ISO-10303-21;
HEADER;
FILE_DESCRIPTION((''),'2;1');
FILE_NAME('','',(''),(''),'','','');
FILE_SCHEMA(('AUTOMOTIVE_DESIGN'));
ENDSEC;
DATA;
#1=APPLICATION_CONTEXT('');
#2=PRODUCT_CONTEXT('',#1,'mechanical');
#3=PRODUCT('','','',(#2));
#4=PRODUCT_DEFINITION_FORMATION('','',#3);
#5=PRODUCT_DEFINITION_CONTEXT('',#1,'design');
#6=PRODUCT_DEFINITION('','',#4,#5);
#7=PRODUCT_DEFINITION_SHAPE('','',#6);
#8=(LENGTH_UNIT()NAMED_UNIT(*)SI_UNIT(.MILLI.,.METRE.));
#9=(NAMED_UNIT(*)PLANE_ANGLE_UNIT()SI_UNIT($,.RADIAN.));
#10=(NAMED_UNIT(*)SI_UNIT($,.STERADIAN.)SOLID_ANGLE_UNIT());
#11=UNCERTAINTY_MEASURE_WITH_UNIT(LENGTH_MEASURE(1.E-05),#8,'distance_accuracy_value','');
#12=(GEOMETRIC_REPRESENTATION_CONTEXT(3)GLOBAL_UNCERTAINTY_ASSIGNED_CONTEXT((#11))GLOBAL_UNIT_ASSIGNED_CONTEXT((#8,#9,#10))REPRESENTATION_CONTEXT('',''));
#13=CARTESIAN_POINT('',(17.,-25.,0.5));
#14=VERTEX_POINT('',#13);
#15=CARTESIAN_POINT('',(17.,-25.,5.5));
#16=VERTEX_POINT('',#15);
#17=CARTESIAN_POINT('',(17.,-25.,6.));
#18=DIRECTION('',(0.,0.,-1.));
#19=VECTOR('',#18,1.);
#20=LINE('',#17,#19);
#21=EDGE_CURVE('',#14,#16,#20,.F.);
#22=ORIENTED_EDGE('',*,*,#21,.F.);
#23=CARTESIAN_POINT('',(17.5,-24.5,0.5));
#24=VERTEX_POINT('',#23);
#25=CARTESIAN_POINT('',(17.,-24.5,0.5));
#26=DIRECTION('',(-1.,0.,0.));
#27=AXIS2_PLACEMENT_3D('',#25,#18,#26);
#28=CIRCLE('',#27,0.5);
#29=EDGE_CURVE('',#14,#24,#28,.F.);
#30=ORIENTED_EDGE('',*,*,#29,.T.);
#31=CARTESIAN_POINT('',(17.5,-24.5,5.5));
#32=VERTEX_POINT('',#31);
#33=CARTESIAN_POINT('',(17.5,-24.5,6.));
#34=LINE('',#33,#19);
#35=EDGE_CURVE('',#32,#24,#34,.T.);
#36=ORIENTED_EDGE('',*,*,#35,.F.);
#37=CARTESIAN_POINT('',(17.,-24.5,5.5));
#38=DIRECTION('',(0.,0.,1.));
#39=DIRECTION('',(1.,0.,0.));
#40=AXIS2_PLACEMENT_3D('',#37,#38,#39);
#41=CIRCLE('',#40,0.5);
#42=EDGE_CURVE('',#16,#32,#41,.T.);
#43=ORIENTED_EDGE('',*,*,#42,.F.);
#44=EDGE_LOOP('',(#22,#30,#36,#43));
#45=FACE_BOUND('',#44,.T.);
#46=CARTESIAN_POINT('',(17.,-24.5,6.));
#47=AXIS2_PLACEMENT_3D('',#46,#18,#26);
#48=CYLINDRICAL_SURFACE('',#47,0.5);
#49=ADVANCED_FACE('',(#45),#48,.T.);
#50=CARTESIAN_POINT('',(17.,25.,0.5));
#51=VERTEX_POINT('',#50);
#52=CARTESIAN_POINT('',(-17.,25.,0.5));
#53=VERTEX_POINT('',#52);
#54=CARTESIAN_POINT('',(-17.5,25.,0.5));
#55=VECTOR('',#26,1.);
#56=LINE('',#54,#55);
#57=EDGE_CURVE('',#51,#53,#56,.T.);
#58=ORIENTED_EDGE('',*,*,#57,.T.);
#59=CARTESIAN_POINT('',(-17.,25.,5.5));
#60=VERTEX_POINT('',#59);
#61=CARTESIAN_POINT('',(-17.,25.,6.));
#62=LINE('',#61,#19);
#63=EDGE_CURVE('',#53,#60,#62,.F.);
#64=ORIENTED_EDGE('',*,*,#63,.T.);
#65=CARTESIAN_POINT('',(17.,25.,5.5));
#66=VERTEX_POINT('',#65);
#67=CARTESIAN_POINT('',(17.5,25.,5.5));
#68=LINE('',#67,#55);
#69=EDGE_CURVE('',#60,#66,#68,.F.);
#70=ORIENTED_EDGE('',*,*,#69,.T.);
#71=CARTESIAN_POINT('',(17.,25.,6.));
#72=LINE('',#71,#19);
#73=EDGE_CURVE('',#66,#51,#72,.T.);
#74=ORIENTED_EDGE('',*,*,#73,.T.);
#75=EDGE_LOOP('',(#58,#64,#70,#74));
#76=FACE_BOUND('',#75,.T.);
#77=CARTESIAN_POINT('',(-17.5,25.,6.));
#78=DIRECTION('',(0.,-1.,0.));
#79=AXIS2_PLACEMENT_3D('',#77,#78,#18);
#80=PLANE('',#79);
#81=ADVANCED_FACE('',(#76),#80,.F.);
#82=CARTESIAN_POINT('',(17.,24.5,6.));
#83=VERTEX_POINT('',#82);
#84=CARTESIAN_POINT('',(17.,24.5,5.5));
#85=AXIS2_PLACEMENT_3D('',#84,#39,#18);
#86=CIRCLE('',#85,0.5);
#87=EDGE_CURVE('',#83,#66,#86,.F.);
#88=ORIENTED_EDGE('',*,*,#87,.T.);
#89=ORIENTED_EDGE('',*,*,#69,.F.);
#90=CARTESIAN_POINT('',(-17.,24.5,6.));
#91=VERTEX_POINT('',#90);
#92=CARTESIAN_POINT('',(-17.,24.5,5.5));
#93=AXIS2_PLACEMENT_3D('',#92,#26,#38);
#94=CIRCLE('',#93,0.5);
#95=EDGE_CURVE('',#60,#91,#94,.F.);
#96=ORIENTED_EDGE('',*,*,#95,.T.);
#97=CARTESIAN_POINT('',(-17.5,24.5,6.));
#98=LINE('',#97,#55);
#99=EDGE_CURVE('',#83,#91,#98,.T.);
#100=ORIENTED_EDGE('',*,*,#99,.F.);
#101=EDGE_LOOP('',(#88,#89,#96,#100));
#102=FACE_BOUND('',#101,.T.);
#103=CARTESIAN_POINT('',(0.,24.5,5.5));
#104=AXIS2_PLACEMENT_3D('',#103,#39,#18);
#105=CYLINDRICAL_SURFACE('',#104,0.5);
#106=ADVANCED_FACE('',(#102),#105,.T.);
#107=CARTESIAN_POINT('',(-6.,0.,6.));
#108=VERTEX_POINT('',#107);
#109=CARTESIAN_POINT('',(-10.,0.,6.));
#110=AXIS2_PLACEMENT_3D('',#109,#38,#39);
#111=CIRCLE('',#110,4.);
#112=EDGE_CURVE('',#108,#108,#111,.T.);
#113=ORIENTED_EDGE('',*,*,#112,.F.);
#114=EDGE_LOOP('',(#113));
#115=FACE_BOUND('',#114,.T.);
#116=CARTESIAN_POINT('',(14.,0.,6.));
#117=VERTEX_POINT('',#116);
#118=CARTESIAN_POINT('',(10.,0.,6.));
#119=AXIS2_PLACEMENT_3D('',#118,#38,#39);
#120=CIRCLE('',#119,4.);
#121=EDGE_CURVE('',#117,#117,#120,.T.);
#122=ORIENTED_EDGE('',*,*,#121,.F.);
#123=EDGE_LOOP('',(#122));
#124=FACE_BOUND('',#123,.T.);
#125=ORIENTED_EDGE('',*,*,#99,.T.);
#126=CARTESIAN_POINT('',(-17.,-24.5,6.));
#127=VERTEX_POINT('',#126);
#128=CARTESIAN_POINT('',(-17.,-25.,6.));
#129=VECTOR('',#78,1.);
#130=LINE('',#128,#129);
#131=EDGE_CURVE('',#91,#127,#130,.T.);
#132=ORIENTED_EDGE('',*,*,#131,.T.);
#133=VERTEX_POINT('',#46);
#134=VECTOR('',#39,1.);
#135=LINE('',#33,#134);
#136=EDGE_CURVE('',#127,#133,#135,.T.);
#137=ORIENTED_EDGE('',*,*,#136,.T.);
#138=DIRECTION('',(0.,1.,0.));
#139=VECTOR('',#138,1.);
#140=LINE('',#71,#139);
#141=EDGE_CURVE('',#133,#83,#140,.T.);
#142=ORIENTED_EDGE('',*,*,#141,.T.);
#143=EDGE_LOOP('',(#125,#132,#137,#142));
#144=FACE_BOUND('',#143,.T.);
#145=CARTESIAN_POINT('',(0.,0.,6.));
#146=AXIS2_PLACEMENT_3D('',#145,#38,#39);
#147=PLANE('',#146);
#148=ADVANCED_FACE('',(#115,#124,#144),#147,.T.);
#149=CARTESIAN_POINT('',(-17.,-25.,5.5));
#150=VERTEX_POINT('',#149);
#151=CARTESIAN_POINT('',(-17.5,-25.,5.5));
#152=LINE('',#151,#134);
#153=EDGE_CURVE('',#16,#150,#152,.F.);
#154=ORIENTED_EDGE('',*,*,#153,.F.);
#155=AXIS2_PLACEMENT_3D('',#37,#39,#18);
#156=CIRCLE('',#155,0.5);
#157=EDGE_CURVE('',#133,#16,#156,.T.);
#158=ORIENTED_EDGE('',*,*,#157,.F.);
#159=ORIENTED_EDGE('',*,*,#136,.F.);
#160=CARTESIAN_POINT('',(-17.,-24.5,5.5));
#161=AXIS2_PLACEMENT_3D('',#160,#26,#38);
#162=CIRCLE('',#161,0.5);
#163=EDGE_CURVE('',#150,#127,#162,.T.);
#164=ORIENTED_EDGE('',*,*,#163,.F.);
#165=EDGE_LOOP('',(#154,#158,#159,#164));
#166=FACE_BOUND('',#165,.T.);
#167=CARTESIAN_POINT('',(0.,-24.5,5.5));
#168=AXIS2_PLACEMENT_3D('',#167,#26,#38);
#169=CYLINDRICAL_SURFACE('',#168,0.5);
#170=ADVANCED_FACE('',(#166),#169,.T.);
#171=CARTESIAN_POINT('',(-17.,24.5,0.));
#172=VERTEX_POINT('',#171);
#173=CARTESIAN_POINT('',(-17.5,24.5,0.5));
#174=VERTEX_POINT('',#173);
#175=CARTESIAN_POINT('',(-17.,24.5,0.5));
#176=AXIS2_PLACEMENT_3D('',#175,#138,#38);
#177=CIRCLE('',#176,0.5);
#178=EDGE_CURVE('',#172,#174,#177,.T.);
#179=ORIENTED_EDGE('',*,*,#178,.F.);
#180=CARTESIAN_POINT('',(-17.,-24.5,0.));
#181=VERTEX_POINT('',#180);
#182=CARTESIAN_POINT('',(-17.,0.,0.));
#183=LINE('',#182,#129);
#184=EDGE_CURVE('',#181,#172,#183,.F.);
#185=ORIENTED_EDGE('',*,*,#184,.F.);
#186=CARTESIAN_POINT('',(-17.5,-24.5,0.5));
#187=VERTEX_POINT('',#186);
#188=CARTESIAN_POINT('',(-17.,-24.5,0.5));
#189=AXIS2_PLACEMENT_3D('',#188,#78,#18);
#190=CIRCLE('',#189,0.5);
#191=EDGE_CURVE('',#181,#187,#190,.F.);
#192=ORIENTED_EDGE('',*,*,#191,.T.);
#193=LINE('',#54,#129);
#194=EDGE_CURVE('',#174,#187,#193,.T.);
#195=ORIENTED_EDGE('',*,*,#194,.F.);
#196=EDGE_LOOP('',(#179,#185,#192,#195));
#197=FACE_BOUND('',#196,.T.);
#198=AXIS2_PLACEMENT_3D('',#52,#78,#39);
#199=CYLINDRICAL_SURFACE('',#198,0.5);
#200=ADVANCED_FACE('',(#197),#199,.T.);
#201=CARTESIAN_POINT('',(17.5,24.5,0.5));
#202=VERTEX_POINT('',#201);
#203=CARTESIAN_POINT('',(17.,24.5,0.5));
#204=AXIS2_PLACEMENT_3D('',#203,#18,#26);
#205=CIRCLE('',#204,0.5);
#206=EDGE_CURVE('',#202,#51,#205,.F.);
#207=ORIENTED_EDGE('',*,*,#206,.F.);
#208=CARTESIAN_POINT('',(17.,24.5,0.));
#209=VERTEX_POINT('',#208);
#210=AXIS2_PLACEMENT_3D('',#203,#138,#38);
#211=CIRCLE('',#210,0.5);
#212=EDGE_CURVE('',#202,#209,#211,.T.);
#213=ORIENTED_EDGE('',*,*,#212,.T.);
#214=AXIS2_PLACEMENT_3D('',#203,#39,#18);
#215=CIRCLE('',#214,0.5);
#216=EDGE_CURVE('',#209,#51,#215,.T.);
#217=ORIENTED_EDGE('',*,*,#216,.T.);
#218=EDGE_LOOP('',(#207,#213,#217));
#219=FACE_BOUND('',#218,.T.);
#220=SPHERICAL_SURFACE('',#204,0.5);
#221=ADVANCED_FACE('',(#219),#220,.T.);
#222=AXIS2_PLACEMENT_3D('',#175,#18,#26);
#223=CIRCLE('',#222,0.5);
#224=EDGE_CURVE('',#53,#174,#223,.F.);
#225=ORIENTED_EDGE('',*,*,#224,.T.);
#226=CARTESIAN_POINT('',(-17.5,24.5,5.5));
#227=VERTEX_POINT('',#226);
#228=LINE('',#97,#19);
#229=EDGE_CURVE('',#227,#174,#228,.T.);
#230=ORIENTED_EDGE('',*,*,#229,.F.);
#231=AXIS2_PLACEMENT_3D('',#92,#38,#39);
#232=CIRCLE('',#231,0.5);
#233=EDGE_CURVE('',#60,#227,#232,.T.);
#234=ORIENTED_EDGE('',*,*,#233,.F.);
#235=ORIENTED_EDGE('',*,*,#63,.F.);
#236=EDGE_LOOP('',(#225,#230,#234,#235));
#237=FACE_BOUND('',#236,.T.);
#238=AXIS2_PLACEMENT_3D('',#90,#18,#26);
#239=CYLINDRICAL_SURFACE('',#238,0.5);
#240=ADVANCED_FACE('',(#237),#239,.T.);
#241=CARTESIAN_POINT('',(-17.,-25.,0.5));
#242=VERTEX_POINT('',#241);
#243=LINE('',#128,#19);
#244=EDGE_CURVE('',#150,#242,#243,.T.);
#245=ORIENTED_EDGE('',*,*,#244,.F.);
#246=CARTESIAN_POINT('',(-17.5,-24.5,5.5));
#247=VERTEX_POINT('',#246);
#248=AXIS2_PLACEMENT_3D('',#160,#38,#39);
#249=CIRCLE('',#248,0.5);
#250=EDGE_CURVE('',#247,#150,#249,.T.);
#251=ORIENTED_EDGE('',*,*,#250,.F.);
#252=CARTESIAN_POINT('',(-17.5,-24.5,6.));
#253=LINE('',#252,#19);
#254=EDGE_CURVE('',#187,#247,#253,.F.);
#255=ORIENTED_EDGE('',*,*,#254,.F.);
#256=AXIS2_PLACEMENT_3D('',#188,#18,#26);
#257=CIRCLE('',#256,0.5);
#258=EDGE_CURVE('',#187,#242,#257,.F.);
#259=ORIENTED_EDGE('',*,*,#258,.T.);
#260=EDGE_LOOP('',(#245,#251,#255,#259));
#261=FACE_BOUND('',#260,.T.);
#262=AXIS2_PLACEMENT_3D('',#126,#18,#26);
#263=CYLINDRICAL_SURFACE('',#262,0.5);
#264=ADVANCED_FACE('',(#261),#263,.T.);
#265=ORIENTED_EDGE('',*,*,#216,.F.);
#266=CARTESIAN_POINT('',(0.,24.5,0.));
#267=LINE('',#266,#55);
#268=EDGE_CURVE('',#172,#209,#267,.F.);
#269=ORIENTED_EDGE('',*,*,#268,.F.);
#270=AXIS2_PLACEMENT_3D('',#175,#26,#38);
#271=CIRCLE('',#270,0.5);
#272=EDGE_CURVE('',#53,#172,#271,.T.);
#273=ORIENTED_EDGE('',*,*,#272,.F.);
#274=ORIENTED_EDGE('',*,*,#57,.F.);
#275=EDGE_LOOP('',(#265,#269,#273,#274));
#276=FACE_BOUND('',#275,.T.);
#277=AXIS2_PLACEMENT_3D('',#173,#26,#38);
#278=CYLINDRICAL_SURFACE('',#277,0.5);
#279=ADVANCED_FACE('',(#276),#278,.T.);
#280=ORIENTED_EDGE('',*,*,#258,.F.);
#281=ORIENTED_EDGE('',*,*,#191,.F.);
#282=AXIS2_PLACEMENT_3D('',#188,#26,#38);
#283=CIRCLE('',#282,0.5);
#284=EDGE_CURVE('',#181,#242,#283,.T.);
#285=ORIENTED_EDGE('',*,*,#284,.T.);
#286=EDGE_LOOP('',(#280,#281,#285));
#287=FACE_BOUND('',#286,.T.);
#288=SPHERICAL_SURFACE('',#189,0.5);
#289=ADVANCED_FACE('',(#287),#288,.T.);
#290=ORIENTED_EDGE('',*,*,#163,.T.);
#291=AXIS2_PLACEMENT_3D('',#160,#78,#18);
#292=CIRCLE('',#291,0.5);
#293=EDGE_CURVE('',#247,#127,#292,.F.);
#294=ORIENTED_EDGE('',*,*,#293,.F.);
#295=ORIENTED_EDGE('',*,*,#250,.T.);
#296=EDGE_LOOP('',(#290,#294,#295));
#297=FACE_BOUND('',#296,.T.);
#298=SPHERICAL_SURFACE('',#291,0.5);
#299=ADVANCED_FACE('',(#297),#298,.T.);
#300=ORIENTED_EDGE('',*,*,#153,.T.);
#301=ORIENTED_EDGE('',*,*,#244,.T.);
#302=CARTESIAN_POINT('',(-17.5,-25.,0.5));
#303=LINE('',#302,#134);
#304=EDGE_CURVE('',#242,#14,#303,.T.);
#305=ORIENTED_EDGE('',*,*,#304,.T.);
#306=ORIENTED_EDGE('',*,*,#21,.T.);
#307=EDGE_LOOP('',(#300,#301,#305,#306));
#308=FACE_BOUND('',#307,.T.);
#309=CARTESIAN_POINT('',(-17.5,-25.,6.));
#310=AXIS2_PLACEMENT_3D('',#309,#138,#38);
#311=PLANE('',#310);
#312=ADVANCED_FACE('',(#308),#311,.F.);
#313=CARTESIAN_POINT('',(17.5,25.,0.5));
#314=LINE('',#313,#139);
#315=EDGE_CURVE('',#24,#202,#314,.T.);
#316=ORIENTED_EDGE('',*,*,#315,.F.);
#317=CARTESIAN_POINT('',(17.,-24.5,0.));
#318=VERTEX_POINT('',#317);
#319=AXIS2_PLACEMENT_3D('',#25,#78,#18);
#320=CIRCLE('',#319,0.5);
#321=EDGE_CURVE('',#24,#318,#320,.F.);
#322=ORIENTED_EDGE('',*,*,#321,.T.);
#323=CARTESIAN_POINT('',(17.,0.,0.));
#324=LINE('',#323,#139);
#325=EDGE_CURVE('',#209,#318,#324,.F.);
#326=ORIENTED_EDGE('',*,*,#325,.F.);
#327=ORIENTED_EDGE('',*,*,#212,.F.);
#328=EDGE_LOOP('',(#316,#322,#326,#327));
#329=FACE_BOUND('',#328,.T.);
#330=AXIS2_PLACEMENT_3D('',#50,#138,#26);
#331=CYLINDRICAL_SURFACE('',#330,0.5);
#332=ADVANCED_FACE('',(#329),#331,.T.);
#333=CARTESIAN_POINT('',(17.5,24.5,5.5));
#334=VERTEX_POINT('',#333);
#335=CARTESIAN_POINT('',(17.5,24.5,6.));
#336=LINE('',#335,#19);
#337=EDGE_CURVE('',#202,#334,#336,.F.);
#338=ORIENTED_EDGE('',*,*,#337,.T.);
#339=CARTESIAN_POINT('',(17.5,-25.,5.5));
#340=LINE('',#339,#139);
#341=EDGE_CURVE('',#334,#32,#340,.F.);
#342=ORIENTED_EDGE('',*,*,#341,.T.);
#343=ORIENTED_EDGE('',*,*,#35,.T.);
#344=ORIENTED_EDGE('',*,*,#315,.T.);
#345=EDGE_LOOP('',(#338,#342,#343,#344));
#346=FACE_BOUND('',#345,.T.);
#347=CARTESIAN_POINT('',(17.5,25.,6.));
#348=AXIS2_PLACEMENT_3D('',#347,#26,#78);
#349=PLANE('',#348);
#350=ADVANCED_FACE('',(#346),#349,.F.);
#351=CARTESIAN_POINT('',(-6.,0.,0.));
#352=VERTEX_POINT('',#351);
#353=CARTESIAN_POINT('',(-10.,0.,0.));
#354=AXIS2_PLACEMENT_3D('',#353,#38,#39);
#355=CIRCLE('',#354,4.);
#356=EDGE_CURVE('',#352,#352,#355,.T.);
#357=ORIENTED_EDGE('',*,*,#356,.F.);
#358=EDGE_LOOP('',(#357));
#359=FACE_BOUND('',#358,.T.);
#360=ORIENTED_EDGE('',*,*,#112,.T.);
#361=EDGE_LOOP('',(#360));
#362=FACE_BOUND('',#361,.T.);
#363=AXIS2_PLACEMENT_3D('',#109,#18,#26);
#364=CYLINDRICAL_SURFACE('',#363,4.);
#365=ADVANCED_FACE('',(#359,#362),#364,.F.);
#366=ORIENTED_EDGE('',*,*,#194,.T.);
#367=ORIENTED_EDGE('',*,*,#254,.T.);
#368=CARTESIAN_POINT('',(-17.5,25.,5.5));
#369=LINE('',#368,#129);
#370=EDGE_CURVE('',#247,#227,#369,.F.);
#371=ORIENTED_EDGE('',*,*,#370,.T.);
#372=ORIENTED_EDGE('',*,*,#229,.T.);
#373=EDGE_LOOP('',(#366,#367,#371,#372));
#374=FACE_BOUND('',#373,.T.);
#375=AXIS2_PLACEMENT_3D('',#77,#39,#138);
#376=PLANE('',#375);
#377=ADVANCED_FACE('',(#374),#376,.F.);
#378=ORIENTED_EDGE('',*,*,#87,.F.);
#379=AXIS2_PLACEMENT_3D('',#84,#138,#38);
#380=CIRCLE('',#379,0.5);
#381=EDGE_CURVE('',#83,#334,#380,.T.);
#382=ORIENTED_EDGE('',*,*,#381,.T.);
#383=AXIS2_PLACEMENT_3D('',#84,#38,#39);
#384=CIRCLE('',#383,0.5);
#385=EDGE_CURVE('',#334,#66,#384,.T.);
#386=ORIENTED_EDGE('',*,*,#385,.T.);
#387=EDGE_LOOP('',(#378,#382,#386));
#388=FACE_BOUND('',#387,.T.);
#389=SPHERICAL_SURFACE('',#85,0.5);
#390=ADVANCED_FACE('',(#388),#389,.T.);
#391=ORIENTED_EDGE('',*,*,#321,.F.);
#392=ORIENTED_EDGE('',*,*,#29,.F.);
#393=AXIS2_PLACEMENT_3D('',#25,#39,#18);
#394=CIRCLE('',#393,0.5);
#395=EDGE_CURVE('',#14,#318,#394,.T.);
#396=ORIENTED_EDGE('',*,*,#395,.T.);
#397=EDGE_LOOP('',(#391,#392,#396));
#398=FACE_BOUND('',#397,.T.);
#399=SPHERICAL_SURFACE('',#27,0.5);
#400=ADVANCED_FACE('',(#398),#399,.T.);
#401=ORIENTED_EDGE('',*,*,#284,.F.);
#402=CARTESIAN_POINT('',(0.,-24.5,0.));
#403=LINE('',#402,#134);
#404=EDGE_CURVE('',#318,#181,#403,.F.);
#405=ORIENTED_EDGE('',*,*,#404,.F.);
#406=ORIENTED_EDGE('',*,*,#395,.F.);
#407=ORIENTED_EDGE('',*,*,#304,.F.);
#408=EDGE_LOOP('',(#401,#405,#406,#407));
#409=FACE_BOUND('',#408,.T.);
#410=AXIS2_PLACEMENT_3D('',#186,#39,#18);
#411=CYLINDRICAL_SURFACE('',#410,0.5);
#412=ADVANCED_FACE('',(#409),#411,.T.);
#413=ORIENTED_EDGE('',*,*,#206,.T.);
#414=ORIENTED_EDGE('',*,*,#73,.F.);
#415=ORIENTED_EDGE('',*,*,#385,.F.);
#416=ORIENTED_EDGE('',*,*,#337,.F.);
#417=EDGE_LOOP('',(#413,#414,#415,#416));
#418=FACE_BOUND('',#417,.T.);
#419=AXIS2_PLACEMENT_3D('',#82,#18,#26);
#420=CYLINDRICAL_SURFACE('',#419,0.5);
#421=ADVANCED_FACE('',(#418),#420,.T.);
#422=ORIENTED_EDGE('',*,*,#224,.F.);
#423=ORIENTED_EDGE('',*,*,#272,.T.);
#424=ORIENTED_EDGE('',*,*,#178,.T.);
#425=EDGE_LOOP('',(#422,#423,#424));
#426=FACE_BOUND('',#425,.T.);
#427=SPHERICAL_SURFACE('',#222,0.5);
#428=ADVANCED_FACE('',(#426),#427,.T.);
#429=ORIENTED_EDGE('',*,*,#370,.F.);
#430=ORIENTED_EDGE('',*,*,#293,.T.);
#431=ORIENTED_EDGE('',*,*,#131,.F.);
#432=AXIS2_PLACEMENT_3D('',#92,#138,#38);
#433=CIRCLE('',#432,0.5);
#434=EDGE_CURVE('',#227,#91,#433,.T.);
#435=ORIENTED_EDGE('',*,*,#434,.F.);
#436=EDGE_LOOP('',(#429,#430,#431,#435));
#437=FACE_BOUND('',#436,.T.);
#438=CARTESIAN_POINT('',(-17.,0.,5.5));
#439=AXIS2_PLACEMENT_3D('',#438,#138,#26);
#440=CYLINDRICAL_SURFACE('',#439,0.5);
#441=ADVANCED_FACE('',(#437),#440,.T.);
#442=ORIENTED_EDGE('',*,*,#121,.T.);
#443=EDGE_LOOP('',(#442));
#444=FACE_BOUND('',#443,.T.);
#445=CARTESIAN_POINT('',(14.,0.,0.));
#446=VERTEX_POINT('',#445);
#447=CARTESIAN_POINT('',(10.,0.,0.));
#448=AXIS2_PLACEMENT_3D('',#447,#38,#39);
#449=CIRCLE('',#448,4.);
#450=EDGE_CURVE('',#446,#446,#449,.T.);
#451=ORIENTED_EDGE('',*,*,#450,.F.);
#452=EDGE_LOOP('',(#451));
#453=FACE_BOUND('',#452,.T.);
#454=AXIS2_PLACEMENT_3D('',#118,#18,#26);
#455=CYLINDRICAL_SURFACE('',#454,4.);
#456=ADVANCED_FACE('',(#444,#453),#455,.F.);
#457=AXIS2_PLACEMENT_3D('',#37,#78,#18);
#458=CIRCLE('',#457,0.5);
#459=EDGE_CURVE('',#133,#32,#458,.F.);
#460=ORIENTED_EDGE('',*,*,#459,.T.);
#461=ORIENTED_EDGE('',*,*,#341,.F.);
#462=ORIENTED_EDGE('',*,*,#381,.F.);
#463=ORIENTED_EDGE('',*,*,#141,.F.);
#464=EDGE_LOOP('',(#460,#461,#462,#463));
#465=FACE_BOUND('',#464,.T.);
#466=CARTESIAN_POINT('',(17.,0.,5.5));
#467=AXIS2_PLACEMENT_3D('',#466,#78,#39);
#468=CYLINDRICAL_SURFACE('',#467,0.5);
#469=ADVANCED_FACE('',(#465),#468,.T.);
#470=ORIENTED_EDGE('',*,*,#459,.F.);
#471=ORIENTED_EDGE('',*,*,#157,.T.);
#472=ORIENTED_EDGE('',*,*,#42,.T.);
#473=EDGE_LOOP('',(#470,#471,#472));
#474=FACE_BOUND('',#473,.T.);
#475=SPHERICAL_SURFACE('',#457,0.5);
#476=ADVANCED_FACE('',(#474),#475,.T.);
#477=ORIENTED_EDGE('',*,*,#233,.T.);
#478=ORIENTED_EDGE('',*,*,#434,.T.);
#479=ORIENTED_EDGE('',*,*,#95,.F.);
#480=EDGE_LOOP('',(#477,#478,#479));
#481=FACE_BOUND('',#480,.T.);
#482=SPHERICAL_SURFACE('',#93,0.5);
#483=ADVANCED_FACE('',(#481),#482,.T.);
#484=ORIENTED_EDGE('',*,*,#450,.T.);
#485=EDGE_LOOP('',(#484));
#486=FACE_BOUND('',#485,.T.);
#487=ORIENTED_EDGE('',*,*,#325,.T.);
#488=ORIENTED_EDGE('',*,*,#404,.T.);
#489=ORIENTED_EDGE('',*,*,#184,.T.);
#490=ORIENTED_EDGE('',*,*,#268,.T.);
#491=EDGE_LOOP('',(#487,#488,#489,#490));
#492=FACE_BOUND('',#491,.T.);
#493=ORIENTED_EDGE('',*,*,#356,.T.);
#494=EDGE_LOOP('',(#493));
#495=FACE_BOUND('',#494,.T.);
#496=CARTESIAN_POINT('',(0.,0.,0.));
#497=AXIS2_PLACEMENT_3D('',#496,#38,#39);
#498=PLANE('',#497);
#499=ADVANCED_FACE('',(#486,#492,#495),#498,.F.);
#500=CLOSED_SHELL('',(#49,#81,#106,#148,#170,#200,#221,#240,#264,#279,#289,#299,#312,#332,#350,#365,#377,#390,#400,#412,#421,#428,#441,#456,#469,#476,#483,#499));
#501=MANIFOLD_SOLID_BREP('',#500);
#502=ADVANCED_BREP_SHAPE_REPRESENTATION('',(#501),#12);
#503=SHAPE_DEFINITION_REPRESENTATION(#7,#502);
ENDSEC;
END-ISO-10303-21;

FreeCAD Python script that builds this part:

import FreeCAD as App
import Part
import Sketcher

V = App.Vector


def edges_at(feature, points):
    """Names of the edges that pass closest to the given points."""
    edges = feature.Shape.Edges
    near = lambda p: min(range(len(edges)), key=lambda i: edges[i].distToShape(Part.Vertex(*p))[0])
    return sorted({f"Edge{near(p) + 1}" for p in points})


def add_polygon(sketch, points):
    """Adds a closed chain of lines whose ends are joined by coincident constraints."""
    first, n = sketch.GeometryCount, len(points)
    for a, b in zip(points, points[1:] + points[:1]):
        sketch.addGeometry(Part.LineSegment(App.Vector(*a, 0), App.Vector(*b, 0)), False)
    for i in range(n):
        sketch.addConstraint(Sketcher.Constraint("Coincident", first + i, 2, first + (i + 1) % n, 1))

doc = App.newDocument("Part")
body = doc.addObject("PartDesign::Body", "Body")

# Sketch on XY plane
sketch1 = doc.addObject("Sketcher::SketchObject", "Sketch")
body.addObject(sketch1)
sketch1.AttachmentSupport = (doc.XY_Plane, [""])
sketch1.MapMode = "FlatFace"
add_polygon(sketch1, [(-17.5, 25), (-17.5, -25), (17.5, -25), (17.5, 25)])  # lines 0-3
sketch1.addGeometry(Part.Circle(V(-10, 0, 0), V(0, 0, 1), 4), False)  # 4
sketch1.addGeometry(Part.Circle(V(10, 0, 0), V(0, 0, 1), 4), False)  # 5
sketch1.addConstraint([
    Sketcher.Constraint("Vertical", 0),
    Sketcher.Constraint("Horizontal", 1),
    Sketcher.Constraint("Vertical", 2),
    Sketcher.Constraint("Horizontal", 3),
    Sketcher.Constraint("Equal", 4, 5),
    Sketcher.Constraint("Symmetric", 4, 3, 5, 3, -1, 1),
    Sketcher.Constraint("Symmetric", 0, 2, 2, 2, -1, 1),
    Sketcher.Constraint("PointOnObject", 4, 3, -1),
    Sketcher.Constraint("Diameter", 4, 8.0),
    Sketcher.Constraint("DistanceX", 1, 1, 1, 2, 35.0),
    Sketcher.Constraint("DistanceY", 0, 2, 0, 1, 50.0),
    Sketcher.Constraint("DistanceX", 4, 3, -1, 1, 10.0),
])
pad1 = doc.addObject("PartDesign::Pad", "Pad")
body.addObject(pad1)
pad1.Profile = sketch1
pad1.Length = 6
doc.recompute()

fillet = doc.addObject("PartDesign::Fillet", "Fillet")
body.addObject(fillet)
fillet.Base = (pad1, edges_at(pad1, [
    (-17.5, 0, 6),
    (0, -25, 6),
    (17.5, 0, 6),
    (0, -25, 0),
    (-17.5, 0, 0),
    (0, 25, 0),
    (17.5, 0, 0),
    (17.5, -25, 3),
    (-17.5, -25, 3),
    (-17.5, 25, 3),
    (17.5, 25, 3),
    (0, 25, 6),
]))
fillet.Radius = 0.5

doc.recompute()
